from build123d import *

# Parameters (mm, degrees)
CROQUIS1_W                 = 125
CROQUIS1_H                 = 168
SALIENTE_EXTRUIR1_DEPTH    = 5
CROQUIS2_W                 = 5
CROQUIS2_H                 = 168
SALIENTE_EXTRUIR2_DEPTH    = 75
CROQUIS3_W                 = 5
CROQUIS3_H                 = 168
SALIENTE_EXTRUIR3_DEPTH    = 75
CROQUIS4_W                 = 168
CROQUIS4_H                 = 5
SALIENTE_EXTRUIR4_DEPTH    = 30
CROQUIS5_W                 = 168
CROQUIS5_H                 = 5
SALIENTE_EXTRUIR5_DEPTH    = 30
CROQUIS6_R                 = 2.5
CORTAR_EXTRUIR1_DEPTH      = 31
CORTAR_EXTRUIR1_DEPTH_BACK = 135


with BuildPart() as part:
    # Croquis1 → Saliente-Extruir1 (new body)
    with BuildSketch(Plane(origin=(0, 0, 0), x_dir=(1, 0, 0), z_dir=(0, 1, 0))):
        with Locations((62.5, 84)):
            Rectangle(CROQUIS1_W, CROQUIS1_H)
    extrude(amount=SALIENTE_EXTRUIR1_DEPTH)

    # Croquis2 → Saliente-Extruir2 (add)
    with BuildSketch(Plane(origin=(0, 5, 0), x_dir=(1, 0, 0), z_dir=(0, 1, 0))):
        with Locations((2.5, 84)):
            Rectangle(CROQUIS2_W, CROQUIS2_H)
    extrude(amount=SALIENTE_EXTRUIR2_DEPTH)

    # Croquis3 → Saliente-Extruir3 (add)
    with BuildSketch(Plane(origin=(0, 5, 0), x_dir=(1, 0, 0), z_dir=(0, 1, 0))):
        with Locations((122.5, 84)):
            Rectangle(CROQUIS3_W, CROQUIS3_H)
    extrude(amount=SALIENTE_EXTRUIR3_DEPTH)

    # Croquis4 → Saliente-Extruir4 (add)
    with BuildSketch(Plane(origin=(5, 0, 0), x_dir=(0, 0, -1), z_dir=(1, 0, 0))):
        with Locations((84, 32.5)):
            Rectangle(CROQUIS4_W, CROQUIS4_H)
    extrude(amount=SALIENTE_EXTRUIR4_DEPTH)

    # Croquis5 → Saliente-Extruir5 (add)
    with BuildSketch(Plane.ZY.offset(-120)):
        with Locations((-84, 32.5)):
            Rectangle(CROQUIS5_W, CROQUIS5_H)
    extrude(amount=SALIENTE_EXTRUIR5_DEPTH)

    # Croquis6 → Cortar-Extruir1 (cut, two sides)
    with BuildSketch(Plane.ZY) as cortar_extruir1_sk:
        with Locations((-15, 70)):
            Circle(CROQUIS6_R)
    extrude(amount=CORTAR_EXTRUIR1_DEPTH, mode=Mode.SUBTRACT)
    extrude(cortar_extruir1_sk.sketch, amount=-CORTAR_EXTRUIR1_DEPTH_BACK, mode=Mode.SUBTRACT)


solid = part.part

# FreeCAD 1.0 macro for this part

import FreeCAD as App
import Part
import Sketcher
from FreeCAD import Vector
Q = App.Units.Quantity

doc = App.newDocument("Part")
body = doc.addObject("PartDesign::Body", "Body")

# Sketch on XZ plane
sketch1 = body.newObject("Sketcher::SketchObject", "Sketch")
sketch1.AttachmentSupport = (doc.getObject("XZ_Plane"), [""])
sketch1.MapMode = "FlatFace"
sketch1.addGeometry([
    Part.LineSegment(Vector(0, -168, 0), Vector(0, 0, 0)),
    Part.LineSegment(Vector(0, 0, 0), Vector(125, 0, 0)),
    Part.LineSegment(Vector(125, 0, 0), Vector(125, -168, 0)),
    Part.LineSegment(Vector(125, -168, 0), Vector(0, -168, 0)),
], False)
sketch1.addConstraint([
    Sketcher.Constraint("Coincident", 0, 2, 1, 1),
    Sketcher.Constraint("Coincident", 1, 2, 2, 1),
    Sketcher.Constraint("Coincident", 2, 2, 3, 1),
    Sketcher.Constraint("Coincident", 3, 2, 0, 1),
    Sketcher.Constraint("Vertical", 0),
    Sketcher.Constraint("Horizontal", 1),
    Sketcher.Constraint("Vertical", 2),
    Sketcher.Constraint("Horizontal", 3),
    Sketcher.Constraint("Coincident", 0, 2, -1, 1),
    Sketcher.Constraint("DistanceX", 1, 1, 1, 2, Q("125 mm")),
    Sketcher.Constraint("DistanceY", 0, 1, 0, 2, Q("168 mm")),
])
pad1 = body.newObject("PartDesign::Pad", "Pad")
pad1.Profile = sketch1
pad1.Length = 5
pad1.Reversed = True

# Sketch on XZ plane
sketch2 = body.newObject("Sketcher::SketchObject", "Sketch001")
sketch2.AttachmentSupport = (doc.getObject("XZ_Plane"), [""])
sketch2.MapMode = "FlatFace"
sketch2.AttachmentOffset = App.Placement(Vector(0, 0, -5), App.Rotation())
sketch2.addGeometry([
    Part.LineSegment(Vector(0, -168, 0), Vector(0, 0, 0)),
    Part.LineSegment(Vector(0, 0, 0), Vector(5, 0, 0)),
    Part.LineSegment(Vector(5, 0, 0), Vector(5, -168, 0)),
    Part.LineSegment(Vector(5, -168, 0), Vector(0, -168, 0)),
], False)
sketch2.addConstraint([
    Sketcher.Constraint("Coincident", 0, 2, 1, 1),
    Sketcher.Constraint("Coincident", 1, 2, 2, 1),
    Sketcher.Constraint("Coincident", 2, 2, 3, 1),
    Sketcher.Constraint("Coincident", 3, 2, 0, 1),
    Sketcher.Constraint("Vertical", 0),
    Sketcher.Constraint("Horizontal", 1),
    Sketcher.Constraint("Vertical", 2),
    Sketcher.Constraint("Horizontal", 3),
    Sketcher.Constraint("Coincident", 0, 2, -1, 1),
    Sketcher.Constraint("DistanceX", 1, 1, 1, 2, Q("5 mm")),
    Sketcher.Constraint("DistanceY", 0, 1, 0, 2, Q("168 mm")),
])
pad2 = body.newObject("PartDesign::Pad", "Pad001")
pad2.Profile = sketch2
pad2.Length = 75
pad2.Reversed = True

# Sketch on XZ plane
sketch3 = body.newObject("Sketcher::SketchObject", "Sketch002")
sketch3.AttachmentSupport = (doc.getObject("XZ_Plane"), [""])
sketch3.MapMode = "FlatFace"
sketch3.AttachmentOffset = App.Placement(Vector(0, 0, -5), App.Rotation())
sketch3.addGeometry([
    Part.LineSegment(Vector(120, -168, 0), Vector(120, 0, 0)),
    Part.LineSegment(Vector(120, 0, 0), Vector(125, 0, 0)),
    Part.LineSegment(Vector(125, 0, 0), Vector(125, -168, 0)),
    Part.LineSegment(Vector(125, -168, 0), Vector(120, -168, 0)),
], False)
sketch3.addConstraint([
    Sketcher.Constraint("Coincident", 0, 2, 1, 1),
    Sketcher.Constraint("Coincident", 1, 2, 2, 1),
    Sketcher.Constraint("Coincident", 2, 2, 3, 1),
    Sketcher.Constraint("Coincident", 3, 2, 0, 1),
    Sketcher.Constraint("Vertical", 0),
    Sketcher.Constraint("Horizontal", 1),
    Sketcher.Constraint("Vertical", 2),
    Sketcher.Constraint("Horizontal", 3),
    Sketcher.Constraint("PointOnObject", 0, 2, -1),
    Sketcher.Constraint("DistanceX", 1, 1, 1, 2, Q("5 mm")),
    Sketcher.Constraint("DistanceY", 0, 1, 0, 2, Q("168 mm")),
    Sketcher.Constraint("DistanceX", -1, 1, 0, 2, Q("120 mm")),
])
pad3 = body.newObject("PartDesign::Pad", "Pad002")
pad3.Profile = sketch3
pad3.Length = 75
pad3.Reversed = True

# Sketch on YZ plane
sketch4 = body.newObject("Sketcher::SketchObject", "Sketch003")
sketch4.AttachmentSupport = (doc.getObject("YZ_Plane"), [""])
sketch4.MapMode = "FlatFace"
sketch4.AttachmentOffset = App.Placement(Vector(0, 0, 5), App.Rotation())
sketch4.addGeometry([
    Part.LineSegment(Vector(35, 0, 0), Vector(30, 0, 0)),
    Part.LineSegment(Vector(30, 0, 0), Vector(30, -168, 0)),
    Part.LineSegment(Vector(30, -168, 0), Vector(35, -168, 0)),
    Part.LineSegment(Vector(35, -168, 0), Vector(35, 0, 0)),
], False)
sketch4.addConstraint([
    Sketcher.Constraint("Coincident", 0, 2, 1, 1),
    Sketcher.Constraint("Coincident", 1, 2, 2, 1),
    Sketcher.Constraint("Coincident", 2, 2, 3, 1),
    Sketcher.Constraint("Coincident", 3, 2, 0, 1),
    Sketcher.Constraint("Horizontal", 0),
    Sketcher.Constraint("Vertical", 1),
    Sketcher.Constraint("Horizontal", 2),
    Sketcher.Constraint("Vertical", 3),
    Sketcher.Constraint("PointOnObject", 0, 2, -1),
    Sketcher.Constraint("DistanceX", 0, 2, 0, 1, Q("5 mm")),
    Sketcher.Constraint("DistanceY", 1, 2, 1, 1, Q("168 mm")),
    Sketcher.Constraint("DistanceX", -1, 1, 0, 2, Q("30 mm")),
])
pad4 = body.newObject("PartDesign::Pad", "Pad003")
pad4.Profile = sketch4
pad4.Length = 30

# Sketch on YZ plane
sketch5 = body.newObject("Sketcher::SketchObject", "Sketch004")
sketch5.AttachmentSupport = (doc.getObject("YZ_Plane"), [""])
sketch5.MapMode = "FlatFace"
sketch5.AttachmentOffset = App.Placement(Vector(0, 0, 120), App.Rotation())
sketch5.addGeometry([
    Part.LineSegment(Vector(35, -168, 0), Vector(30, -168, 0)),
    Part.LineSegment(Vector(30, -168, 0), Vector(30, 0, 0)),
    Part.LineSegment(Vector(30, 0, 0), Vector(35, 0, 0)),
    Part.LineSegment(Vector(35, 0, 0), Vector(35, -168, 0)),
], False)
sketch5.addConstraint([
    Sketcher.Constraint("Coincident", 0, 2, 1, 1),
    Sketcher.Constraint("Coincident", 1, 2, 2, 1),
    Sketcher.Constraint("Coincident", 2, 2, 3, 1),
    Sketcher.Constraint("Coincident", 3, 2, 0, 1),
    Sketcher.Constraint("Horizontal", 0),
    Sketcher.Constraint("Vertical", 1),
    Sketcher.Constraint("Horizontal", 2),
    Sketcher.Constraint("Vertical", 3),
    Sketcher.Constraint("PointOnObject", 1, 2, -1),
    Sketcher.Constraint("DistanceX", 0, 2, 0, 1, Q("5 mm")),
    Sketcher.Constraint("DistanceY", 1, 1, 1, 2, Q("168 mm")),
    Sketcher.Constraint("DistanceX", -1, 1, 0, 2, Q("30 mm")),
])
pad5 = body.newObject("PartDesign::Pad", "Pad004")
pad5.Profile = sketch5
pad5.Length = 30
pad5.Reversed = True

# Sketch on YZ plane
sketch6 = body.newObject("Sketcher::SketchObject", "Sketch005")
sketch6.AttachmentSupport = (doc.getObject("YZ_Plane"), [""])
sketch6.MapMode = "FlatFace"
sketch6.addGeometry(Part.Circle(Vector(70, -15, 0), Vector(0, 0, 1), 2.5), False)
sketch6.addConstraint([
    Sketcher.Constraint("Diameter", 0, Q("5 mm")),
    Sketcher.Constraint("DistanceX", -1, 1, 0, 3, Q("70 mm")),
    Sketcher.Constraint("DistanceY", 0, 3, -1, 1, Q("15 mm")),
])
pocket1 = body.newObject("PartDesign::Pocket", "Pocket")
pocket1.Profile = sketch6
pocket1.Type = "ThroughAll"
pocket1.Midplane = True

doc.recompute()
